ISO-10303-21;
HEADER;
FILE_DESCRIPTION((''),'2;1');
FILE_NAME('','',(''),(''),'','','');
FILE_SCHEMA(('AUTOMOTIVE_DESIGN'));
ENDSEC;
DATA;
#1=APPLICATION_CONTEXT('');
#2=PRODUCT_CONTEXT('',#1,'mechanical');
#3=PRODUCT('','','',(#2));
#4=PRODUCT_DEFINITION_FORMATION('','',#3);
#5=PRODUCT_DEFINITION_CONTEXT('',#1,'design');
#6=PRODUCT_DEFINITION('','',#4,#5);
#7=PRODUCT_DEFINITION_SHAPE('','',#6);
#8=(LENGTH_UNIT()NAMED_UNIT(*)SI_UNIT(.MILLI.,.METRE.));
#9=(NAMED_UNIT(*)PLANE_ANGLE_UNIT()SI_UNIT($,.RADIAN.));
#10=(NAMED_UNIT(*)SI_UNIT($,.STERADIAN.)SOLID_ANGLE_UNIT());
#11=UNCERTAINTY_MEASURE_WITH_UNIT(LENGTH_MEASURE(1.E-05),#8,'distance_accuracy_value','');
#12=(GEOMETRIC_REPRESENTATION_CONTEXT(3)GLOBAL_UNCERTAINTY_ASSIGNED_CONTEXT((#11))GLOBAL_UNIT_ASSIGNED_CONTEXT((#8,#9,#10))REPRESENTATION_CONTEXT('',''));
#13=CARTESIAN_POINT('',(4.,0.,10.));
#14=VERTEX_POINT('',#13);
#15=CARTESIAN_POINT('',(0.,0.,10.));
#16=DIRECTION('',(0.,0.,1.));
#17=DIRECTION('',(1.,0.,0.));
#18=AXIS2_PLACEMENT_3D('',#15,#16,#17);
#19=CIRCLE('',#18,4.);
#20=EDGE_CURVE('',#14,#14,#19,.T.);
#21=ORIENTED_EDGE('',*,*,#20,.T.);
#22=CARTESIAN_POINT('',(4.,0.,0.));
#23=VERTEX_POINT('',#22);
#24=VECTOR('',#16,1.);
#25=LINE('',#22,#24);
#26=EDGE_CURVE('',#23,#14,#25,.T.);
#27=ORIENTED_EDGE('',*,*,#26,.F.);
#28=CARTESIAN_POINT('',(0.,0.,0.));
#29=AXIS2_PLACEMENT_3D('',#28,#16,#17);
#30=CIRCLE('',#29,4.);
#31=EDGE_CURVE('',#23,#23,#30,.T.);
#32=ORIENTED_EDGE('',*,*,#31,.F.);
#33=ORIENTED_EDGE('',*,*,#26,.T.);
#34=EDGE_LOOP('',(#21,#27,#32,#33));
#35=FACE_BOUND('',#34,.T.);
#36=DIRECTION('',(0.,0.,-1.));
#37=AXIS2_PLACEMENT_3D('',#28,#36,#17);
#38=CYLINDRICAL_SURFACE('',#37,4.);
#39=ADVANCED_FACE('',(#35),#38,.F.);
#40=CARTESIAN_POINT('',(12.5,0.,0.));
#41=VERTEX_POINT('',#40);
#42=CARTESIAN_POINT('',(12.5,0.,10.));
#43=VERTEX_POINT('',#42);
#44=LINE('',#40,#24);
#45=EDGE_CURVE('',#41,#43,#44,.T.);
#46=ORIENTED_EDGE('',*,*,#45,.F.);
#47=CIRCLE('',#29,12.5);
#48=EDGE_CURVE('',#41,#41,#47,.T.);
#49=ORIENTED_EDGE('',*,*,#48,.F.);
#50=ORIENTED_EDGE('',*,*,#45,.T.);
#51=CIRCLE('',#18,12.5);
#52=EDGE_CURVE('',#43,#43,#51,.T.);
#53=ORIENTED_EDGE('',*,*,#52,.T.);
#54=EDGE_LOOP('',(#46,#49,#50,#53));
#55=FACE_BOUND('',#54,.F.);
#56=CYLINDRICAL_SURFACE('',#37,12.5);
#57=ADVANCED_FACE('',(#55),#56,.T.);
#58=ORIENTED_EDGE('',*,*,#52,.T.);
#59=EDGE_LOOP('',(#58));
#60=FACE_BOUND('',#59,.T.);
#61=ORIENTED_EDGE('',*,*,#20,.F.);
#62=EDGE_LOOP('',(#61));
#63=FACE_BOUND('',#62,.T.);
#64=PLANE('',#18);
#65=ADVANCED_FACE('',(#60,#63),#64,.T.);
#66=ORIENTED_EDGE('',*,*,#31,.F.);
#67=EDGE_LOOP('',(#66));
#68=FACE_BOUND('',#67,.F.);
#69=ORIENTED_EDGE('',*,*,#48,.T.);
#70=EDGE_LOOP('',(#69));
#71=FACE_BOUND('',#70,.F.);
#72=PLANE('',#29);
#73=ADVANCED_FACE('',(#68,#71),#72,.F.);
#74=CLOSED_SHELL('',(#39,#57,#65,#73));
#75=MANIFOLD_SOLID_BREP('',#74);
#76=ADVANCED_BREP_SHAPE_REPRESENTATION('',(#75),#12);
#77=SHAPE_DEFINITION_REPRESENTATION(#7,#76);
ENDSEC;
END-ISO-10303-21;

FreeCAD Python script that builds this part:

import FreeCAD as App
import Part
import Sketcher

V = App.Vector

doc = App.newDocument("Part")
body = doc.addObject("PartDesign::Body", "Body")

sketch1 = body.newObject("Sketcher::SketchObject", "Sketch")
sketch1.AttachmentSupport = (doc.getObject("XY_Plane"), [""])
sketch1.MapMode = "FlatFace"
sketch1.addGeometry([
    Part.Circle(V(0, 0, 0), V(0, 0, 1), 12.5),
    Part.Circle(V(0, 0, 0), V(0, 0, 1), 4),
], False)
sketch1.addConstraint([
    Sketcher.Constraint("Coincident", 0, 3, -1, 1),
    Sketcher.Constraint("Coincident", 1, 3, -1, 1),
    Sketcher.Constraint("Diameter", 0, 25.0),
    Sketcher.Constraint("Diameter", 1, 8.0),
])
pad1 = body.newObject("PartDesign::Pad", "Pad")
pad1.Profile = sketch1
pad1.Length = 10

doc.recompute()
